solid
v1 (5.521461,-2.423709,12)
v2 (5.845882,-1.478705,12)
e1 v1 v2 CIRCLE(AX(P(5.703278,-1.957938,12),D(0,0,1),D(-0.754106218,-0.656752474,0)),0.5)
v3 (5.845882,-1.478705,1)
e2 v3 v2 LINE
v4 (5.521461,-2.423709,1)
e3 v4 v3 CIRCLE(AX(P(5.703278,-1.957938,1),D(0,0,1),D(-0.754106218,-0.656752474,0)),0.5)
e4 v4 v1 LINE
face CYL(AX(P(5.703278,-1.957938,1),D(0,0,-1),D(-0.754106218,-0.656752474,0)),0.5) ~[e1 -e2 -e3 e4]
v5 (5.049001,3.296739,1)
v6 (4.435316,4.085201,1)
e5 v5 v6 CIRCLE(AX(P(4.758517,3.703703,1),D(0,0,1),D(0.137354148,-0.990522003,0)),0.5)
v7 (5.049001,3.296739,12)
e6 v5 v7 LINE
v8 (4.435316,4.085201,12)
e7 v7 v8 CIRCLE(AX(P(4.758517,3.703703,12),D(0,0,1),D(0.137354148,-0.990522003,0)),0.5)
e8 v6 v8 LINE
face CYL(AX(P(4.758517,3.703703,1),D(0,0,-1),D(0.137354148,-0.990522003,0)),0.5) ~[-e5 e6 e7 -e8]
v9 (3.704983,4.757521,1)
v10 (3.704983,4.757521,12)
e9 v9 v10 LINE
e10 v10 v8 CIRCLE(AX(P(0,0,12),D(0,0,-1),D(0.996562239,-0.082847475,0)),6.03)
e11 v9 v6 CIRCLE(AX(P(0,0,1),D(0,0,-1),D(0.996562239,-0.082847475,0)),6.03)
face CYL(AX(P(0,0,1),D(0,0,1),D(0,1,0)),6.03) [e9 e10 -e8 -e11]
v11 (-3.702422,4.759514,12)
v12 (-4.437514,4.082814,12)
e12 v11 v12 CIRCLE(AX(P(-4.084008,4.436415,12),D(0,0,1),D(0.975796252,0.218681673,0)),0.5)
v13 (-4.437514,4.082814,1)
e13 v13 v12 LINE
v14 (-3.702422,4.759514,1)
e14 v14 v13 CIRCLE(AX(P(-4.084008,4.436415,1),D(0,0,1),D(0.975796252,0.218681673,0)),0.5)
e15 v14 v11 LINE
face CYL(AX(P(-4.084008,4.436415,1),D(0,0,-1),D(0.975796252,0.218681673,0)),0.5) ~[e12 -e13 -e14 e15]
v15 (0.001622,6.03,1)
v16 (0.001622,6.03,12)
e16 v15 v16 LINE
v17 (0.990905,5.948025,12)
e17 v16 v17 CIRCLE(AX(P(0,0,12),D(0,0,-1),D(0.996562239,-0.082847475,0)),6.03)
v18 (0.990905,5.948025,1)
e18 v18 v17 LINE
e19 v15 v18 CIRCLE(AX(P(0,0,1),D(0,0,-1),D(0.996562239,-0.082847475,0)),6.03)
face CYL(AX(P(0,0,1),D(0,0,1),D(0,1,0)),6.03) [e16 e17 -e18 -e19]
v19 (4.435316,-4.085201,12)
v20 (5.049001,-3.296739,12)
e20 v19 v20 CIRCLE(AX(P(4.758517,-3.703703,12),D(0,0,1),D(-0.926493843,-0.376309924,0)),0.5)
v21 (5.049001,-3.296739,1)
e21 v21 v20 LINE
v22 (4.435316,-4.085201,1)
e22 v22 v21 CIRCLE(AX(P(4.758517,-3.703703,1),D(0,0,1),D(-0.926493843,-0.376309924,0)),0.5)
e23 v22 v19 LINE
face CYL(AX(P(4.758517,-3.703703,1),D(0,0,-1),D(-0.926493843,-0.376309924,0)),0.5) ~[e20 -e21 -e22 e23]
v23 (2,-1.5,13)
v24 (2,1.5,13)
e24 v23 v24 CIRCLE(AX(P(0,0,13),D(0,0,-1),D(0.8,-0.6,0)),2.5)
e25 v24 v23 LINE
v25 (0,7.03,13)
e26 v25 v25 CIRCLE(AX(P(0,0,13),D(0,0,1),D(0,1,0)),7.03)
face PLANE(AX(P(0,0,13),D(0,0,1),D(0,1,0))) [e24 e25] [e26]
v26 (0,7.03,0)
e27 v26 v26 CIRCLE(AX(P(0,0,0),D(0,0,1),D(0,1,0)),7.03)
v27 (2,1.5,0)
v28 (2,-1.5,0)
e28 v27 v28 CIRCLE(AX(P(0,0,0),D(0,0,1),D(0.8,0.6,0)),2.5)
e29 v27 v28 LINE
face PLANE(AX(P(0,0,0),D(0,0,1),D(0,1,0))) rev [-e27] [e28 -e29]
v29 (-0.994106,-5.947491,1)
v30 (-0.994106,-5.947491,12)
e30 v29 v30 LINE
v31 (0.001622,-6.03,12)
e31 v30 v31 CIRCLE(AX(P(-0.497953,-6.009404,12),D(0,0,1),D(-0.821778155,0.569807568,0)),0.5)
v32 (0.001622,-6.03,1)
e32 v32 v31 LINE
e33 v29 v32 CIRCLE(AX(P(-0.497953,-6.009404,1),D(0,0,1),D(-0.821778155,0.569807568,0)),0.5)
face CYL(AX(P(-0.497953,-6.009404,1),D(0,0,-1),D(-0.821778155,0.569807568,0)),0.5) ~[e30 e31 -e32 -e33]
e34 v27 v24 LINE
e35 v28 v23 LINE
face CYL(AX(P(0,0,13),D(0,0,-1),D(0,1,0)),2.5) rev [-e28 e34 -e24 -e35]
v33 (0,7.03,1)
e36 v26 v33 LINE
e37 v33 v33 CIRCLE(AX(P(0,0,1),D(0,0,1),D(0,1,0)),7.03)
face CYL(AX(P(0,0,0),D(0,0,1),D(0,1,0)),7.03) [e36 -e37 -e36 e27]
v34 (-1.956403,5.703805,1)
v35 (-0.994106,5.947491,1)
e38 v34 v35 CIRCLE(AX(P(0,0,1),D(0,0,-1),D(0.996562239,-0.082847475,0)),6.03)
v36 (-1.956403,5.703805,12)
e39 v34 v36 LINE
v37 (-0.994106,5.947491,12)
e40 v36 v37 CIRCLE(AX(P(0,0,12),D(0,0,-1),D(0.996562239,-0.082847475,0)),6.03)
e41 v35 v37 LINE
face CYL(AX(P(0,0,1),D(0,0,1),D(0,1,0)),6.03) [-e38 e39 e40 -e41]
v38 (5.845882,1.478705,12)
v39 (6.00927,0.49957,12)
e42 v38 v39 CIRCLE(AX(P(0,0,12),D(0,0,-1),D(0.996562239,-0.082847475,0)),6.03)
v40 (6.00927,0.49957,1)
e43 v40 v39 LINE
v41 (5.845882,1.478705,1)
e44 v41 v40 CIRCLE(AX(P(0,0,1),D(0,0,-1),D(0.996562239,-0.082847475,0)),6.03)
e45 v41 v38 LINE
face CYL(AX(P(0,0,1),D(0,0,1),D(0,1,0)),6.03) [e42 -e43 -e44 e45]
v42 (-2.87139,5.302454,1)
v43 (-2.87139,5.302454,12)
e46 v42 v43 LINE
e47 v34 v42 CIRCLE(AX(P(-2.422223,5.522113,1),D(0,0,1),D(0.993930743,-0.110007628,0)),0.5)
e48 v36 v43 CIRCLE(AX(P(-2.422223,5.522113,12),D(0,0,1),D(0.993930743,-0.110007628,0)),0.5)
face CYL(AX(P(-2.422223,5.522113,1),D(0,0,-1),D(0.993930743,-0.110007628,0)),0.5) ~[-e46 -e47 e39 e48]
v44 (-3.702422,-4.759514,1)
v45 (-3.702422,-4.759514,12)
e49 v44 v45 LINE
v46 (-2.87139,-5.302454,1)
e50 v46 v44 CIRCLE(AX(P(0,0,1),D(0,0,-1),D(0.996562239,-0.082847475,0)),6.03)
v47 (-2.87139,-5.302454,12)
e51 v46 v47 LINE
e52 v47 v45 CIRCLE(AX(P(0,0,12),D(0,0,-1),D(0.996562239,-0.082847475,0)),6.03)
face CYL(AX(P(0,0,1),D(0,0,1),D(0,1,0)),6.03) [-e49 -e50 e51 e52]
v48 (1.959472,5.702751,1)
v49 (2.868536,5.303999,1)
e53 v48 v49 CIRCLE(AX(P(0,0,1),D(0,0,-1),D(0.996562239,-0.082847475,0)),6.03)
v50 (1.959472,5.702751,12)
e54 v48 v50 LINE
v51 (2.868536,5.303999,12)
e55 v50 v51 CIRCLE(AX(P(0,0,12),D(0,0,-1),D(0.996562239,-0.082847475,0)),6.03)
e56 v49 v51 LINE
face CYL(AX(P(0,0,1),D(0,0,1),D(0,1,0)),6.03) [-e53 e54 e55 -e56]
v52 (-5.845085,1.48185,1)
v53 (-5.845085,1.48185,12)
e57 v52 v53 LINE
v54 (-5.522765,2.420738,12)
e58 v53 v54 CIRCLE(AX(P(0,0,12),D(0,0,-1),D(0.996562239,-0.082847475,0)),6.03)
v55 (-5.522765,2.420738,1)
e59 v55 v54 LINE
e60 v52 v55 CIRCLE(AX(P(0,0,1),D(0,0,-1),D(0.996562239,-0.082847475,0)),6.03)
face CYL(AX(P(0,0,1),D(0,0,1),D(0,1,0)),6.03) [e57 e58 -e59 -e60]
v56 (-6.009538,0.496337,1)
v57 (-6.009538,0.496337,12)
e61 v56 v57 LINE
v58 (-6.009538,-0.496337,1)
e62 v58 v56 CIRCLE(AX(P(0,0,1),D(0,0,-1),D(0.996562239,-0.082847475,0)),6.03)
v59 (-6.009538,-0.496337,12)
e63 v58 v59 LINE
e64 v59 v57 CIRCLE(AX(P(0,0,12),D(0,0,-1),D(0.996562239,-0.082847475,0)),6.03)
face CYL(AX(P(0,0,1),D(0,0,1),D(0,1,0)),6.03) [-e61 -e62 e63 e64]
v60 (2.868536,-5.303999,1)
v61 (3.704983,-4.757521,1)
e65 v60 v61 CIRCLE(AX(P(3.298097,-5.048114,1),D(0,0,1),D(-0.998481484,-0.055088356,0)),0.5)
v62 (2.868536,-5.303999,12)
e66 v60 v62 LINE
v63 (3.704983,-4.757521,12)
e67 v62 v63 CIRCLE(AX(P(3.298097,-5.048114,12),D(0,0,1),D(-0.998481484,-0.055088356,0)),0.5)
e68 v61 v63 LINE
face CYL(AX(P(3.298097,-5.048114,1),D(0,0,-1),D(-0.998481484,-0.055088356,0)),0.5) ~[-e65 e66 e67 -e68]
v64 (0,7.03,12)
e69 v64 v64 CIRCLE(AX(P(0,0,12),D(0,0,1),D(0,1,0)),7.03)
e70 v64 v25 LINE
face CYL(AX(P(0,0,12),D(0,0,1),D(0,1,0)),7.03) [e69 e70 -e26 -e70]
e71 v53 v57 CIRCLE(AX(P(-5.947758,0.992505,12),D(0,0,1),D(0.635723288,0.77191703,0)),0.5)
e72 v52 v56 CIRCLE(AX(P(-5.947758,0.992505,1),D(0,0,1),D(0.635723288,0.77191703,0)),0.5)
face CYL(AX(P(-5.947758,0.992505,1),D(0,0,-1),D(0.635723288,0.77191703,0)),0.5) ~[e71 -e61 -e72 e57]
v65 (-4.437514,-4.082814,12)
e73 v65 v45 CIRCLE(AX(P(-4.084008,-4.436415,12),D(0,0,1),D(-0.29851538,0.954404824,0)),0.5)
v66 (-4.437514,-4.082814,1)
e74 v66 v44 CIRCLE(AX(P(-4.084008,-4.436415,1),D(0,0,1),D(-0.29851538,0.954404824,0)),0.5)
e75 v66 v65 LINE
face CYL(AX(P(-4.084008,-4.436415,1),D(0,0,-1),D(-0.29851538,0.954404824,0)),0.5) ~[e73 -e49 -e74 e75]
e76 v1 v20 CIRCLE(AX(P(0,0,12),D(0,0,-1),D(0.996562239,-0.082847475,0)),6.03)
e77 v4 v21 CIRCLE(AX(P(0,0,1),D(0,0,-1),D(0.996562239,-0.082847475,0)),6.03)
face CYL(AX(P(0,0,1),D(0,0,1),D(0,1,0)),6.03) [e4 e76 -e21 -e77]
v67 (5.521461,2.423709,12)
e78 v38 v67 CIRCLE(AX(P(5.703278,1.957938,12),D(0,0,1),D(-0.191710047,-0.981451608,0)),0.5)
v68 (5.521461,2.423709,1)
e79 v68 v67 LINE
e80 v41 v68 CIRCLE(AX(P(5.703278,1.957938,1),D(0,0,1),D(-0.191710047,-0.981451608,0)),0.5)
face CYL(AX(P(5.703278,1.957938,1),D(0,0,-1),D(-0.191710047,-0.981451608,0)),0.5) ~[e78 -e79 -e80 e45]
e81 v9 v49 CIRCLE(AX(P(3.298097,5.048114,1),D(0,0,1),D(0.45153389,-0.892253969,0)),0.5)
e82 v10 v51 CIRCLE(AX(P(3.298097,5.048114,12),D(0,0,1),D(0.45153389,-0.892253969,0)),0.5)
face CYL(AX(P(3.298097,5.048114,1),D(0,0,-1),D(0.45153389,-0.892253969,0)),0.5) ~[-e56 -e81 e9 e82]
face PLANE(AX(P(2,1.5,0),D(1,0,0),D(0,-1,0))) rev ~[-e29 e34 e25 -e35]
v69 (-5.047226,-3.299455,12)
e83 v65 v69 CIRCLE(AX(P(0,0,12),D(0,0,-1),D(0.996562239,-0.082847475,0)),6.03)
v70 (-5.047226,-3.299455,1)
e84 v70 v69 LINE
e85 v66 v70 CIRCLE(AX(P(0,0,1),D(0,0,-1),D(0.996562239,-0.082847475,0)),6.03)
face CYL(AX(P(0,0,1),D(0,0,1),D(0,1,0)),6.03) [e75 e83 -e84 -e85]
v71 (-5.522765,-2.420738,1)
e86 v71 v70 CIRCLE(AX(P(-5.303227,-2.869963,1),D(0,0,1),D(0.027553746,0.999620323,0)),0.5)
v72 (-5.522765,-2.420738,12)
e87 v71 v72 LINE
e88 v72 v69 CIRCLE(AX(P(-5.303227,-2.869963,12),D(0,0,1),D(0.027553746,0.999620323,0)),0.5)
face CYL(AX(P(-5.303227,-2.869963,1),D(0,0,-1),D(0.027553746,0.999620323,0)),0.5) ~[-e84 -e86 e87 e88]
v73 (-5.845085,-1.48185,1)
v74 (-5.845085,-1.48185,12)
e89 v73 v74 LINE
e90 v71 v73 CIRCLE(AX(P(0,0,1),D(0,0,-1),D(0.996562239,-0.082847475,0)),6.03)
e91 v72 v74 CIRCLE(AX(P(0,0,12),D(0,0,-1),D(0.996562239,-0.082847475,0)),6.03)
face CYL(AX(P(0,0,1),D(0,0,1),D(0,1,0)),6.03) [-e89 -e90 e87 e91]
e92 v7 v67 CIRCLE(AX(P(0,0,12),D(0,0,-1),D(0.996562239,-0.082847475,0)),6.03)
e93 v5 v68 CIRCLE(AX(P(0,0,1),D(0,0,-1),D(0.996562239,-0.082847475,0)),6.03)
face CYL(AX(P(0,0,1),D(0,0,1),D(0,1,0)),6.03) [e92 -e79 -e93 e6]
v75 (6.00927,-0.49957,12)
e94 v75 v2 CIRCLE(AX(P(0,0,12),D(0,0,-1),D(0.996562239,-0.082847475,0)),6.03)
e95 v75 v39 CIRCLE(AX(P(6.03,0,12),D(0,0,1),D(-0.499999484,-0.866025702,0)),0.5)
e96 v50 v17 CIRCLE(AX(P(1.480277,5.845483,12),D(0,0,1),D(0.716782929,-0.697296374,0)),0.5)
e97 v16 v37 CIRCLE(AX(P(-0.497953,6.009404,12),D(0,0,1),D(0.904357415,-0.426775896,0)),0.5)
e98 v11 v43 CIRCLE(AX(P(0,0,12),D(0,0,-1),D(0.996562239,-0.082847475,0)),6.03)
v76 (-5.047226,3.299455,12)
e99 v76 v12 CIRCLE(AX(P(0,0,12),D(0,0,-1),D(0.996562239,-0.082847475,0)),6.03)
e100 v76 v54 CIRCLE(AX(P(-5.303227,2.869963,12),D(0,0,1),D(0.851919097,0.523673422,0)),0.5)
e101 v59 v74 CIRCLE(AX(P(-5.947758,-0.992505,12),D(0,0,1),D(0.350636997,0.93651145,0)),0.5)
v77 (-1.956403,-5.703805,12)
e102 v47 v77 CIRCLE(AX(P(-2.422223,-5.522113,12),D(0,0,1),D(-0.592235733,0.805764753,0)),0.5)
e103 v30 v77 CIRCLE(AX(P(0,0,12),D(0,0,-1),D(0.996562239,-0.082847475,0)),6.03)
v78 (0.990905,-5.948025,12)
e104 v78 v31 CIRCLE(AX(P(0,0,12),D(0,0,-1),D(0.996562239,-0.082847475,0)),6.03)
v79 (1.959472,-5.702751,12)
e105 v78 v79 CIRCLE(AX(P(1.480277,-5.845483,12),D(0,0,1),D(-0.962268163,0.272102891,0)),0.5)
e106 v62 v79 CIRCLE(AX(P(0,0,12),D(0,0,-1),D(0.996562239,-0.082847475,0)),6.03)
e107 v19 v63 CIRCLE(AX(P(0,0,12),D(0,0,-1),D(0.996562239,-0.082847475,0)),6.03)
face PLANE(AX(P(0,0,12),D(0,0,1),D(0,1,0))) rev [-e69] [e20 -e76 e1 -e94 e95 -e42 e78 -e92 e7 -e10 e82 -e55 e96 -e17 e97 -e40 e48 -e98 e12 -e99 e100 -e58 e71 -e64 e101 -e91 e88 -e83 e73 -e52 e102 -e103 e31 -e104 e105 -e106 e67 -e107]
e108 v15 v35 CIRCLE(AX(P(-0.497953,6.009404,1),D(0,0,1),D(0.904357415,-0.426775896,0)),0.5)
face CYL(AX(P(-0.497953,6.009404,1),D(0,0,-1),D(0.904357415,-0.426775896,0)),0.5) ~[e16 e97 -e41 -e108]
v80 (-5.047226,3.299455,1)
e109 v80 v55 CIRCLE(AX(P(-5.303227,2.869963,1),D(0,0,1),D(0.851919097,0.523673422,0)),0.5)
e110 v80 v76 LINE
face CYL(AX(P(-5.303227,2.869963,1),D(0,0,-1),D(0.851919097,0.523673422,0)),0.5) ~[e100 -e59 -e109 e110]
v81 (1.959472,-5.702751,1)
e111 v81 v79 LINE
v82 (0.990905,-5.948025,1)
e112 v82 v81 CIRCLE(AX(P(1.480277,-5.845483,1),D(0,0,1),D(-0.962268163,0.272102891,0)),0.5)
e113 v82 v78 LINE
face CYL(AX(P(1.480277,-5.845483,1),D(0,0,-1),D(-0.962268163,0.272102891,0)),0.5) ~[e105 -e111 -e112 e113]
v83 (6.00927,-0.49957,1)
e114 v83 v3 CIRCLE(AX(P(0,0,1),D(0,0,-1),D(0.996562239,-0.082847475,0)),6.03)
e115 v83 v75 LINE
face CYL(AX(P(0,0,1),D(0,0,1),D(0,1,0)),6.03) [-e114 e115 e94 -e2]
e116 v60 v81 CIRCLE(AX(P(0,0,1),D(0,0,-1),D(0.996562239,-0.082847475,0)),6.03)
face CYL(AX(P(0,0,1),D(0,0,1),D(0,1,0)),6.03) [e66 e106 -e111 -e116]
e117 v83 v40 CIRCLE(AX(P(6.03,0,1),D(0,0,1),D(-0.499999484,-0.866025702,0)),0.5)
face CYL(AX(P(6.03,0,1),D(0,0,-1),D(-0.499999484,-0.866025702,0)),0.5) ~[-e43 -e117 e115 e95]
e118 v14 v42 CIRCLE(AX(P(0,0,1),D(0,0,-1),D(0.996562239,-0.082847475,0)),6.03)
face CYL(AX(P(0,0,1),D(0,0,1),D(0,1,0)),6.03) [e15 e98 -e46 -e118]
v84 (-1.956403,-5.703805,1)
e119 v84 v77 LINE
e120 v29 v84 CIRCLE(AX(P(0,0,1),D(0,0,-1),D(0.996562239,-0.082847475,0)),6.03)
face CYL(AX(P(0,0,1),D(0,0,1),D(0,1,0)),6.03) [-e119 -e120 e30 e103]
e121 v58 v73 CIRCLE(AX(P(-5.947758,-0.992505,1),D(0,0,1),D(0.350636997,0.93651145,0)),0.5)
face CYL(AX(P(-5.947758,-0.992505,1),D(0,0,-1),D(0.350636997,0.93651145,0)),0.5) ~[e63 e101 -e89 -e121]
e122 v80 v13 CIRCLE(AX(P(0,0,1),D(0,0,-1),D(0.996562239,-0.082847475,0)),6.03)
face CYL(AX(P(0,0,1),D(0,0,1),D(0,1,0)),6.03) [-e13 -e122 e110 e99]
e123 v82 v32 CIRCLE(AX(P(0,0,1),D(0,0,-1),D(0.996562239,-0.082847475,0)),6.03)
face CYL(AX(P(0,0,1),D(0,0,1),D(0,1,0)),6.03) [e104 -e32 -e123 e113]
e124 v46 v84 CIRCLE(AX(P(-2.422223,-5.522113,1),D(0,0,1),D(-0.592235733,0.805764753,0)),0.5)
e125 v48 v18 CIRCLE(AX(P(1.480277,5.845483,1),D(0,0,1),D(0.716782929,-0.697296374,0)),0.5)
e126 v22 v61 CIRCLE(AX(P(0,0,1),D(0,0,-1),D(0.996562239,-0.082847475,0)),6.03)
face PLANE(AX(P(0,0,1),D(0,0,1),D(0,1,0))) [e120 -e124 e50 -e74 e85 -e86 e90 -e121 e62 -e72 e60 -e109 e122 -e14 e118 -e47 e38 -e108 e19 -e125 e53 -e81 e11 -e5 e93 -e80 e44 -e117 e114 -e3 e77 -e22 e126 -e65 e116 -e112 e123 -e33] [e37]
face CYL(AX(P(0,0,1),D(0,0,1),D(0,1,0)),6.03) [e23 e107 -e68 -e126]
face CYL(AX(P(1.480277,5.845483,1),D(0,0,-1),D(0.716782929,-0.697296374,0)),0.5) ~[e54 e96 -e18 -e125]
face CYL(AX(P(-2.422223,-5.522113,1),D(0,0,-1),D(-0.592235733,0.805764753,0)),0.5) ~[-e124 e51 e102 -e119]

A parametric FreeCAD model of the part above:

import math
import FreeCAD as App
import Part
import Sketcher
from FreeCAD import Vector
Q = App.Units.Quantity

doc = App.newDocument("Part")
body = doc.addObject("PartDesign::Body", "Body")

sketch1 = body.newObject("Sketcher::SketchObject", "Sketch")
sketch1.AttachmentSupport = (doc.getObject("YZ_Plane"), [""])
sketch1.MapMode = "FlatFace"
sketch1.addGeometry([
    Part.LineSegment(Vector(2.5, 0, 0), Vector(7, 0, 0)),
    Part.LineSegment(Vector(7, 0, 0), Vector(7, 1, 0)),
    Part.LineSegment(Vector(7, 1, 0), Vector(6, 1, 0)),
    Part.LineSegment(Vector(6, 1, 0), Vector(6, 12, 0)),
    Part.LineSegment(Vector(6, 12, 0), Vector(7, 12, 0)),
    Part.LineSegment(Vector(7, 12, 0), Vector(7, 13, 0)),
    Part.LineSegment(Vector(7, 13, 0), Vector(2.5, 13, 0)),
    Part.LineSegment(Vector(2.5, 13, 0), Vector(2.5, 0, 0)),
], False)
sketch1.addConstraint([
    Sketcher.Constraint("Coincident", 0, 2, 1, 1),
    Sketcher.Constraint("Coincident", 1, 2, 2, 1),
    Sketcher.Constraint("Coincident", 2, 2, 3, 1),
    Sketcher.Constraint("Coincident", 3, 2, 4, 1),
    Sketcher.Constraint("Coincident", 4, 2, 5, 1),
    Sketcher.Constraint("Coincident", 5, 2, 6, 1),
    Sketcher.Constraint("Coincident", 6, 2, 7, 1),
    Sketcher.Constraint("Coincident", 7, 2, 0, 1),
    Sketcher.Constraint("Horizontal", 0),
    Sketcher.Constraint("Vertical", 1),
    Sketcher.Constraint("Horizontal", 2),
    Sketcher.Constraint("Vertical", 3),
    Sketcher.Constraint("Horizontal", 4),
    Sketcher.Constraint("Vertical", 5),
    Sketcher.Constraint("Horizontal", 6),
    Sketcher.Constraint("Vertical", 7),
    Sketcher.Constraint("PointOnObject", 0, 2, -1),
    Sketcher.Constraint("Vertical", 1, 2, 4, 2),
    Sketcher.Constraint("Equal", 4, 1),
    Sketcher.Constraint("Equal", 1, 5),
    Sketcher.Constraint("DistanceX", 2, 2, 2, 1, Q("1 mm")),
    Sketcher.Constraint("DistanceY", 3, 1, 3, 2, Q("11 mm")),
    Sketcher.Constraint("DistanceX", 0, 1, 0, 2, Q("4.53 mm")),
    Sketcher.Constraint("DistanceX", -1, 1, 6, 2, Q("2.5 mm")),
])
revolution = body.newObject("PartDesign::Revolution", "Revolution")
revolution.Profile = sketch1
revolution.ReferenceAxis = (sketch1, ["V_Axis"])
revolution.Angle = 360

sketch2 = body.newObject("Sketcher::SketchObject", "Sketch001")
sketch2.AttachmentSupport = (doc.getObject("XY_Plane"), [""])
sketch2.MapMode = "FlatFace"
sketch2.AttachmentOffset = App.Placement(Vector(0, 0, 1), App.Rotation())
sketch2.addGeometry([
    Part.ArcOfCircle(Part.Circle(Vector(6, 0, 0), Vector(0, 0, 1), 0.5), math.radians(-120), math.radians(120)),
    Part.LineSegment(Vector(5.8, 0.4, 0), Vector(5.8, -0.4, 0)),
], False)
sketch2.addConstraint([
    Sketcher.Constraint("Coincident", 0, 1, 1, 2),
    Sketcher.Constraint("Coincident", 1, 1, 0, 2),
    Sketcher.Constraint("Vertical", 1),
    Sketcher.Constraint("PointOnObject", 0, 3, -1),
    Sketcher.Constraint("Radius", 0, Q("0.5 mm")),
    Sketcher.Constraint("DistanceX", -1, 1, 0, 3, Q("6.03 mm")),
    Sketcher.Constraint("DistanceX", -1, 1, 0, 1, Q("5.78 mm")),
])
pad1 = body.newObject("PartDesign::Pad", "Pad")
pad1.Profile = sketch2
pad1.Length = 11
doc.recompute()

polarpattern = body.newObject("PartDesign::PolarPattern", "PolarPattern")
polarpattern.Originals = [pad1]
polarpattern.Axis = (doc.getObject("Z_Axis"), [""])
polarpattern.Angle = 360
polarpattern.Occurrences = 19
body.Tip = polarpattern

sketch3 = body.newObject("Sketcher::SketchObject", "Sketch002")
sketch3.AttachmentSupport = (doc.getObject("XY_Plane"), [""])
sketch3.MapMode = "FlatFace"
sketch3.addGeometry([
    Part.ArcOfCircle(Part.Circle(Vector(0, 0, 0), Vector(0, 0, 1), 2.5), math.radians(-37), math.radians(37)),
    Part.LineSegment(Vector(2, 1.5, 0), Vector(2, -1.5, 0)),
], False)
sketch3.addConstraint([
    Sketcher.Constraint("Coincident", 0, 1, 1, 2),
    Sketcher.Constraint("Coincident", 1, 1, 0, 2),
    Sketcher.Constraint("Vertical", 1),
    Sketcher.Constraint("Coincident", 0, 3, -1, 1),
    Sketcher.Constraint("Radius", 0, Q("2.5 mm")),
    Sketcher.Constraint("DistanceY", 1, 2, 1, 1, Q("3 mm")),
])
pad2 = body.newObject("PartDesign::Pad", "Pad001")
pad2.Profile = sketch3
pad2.Length = 13

doc.recompute()
